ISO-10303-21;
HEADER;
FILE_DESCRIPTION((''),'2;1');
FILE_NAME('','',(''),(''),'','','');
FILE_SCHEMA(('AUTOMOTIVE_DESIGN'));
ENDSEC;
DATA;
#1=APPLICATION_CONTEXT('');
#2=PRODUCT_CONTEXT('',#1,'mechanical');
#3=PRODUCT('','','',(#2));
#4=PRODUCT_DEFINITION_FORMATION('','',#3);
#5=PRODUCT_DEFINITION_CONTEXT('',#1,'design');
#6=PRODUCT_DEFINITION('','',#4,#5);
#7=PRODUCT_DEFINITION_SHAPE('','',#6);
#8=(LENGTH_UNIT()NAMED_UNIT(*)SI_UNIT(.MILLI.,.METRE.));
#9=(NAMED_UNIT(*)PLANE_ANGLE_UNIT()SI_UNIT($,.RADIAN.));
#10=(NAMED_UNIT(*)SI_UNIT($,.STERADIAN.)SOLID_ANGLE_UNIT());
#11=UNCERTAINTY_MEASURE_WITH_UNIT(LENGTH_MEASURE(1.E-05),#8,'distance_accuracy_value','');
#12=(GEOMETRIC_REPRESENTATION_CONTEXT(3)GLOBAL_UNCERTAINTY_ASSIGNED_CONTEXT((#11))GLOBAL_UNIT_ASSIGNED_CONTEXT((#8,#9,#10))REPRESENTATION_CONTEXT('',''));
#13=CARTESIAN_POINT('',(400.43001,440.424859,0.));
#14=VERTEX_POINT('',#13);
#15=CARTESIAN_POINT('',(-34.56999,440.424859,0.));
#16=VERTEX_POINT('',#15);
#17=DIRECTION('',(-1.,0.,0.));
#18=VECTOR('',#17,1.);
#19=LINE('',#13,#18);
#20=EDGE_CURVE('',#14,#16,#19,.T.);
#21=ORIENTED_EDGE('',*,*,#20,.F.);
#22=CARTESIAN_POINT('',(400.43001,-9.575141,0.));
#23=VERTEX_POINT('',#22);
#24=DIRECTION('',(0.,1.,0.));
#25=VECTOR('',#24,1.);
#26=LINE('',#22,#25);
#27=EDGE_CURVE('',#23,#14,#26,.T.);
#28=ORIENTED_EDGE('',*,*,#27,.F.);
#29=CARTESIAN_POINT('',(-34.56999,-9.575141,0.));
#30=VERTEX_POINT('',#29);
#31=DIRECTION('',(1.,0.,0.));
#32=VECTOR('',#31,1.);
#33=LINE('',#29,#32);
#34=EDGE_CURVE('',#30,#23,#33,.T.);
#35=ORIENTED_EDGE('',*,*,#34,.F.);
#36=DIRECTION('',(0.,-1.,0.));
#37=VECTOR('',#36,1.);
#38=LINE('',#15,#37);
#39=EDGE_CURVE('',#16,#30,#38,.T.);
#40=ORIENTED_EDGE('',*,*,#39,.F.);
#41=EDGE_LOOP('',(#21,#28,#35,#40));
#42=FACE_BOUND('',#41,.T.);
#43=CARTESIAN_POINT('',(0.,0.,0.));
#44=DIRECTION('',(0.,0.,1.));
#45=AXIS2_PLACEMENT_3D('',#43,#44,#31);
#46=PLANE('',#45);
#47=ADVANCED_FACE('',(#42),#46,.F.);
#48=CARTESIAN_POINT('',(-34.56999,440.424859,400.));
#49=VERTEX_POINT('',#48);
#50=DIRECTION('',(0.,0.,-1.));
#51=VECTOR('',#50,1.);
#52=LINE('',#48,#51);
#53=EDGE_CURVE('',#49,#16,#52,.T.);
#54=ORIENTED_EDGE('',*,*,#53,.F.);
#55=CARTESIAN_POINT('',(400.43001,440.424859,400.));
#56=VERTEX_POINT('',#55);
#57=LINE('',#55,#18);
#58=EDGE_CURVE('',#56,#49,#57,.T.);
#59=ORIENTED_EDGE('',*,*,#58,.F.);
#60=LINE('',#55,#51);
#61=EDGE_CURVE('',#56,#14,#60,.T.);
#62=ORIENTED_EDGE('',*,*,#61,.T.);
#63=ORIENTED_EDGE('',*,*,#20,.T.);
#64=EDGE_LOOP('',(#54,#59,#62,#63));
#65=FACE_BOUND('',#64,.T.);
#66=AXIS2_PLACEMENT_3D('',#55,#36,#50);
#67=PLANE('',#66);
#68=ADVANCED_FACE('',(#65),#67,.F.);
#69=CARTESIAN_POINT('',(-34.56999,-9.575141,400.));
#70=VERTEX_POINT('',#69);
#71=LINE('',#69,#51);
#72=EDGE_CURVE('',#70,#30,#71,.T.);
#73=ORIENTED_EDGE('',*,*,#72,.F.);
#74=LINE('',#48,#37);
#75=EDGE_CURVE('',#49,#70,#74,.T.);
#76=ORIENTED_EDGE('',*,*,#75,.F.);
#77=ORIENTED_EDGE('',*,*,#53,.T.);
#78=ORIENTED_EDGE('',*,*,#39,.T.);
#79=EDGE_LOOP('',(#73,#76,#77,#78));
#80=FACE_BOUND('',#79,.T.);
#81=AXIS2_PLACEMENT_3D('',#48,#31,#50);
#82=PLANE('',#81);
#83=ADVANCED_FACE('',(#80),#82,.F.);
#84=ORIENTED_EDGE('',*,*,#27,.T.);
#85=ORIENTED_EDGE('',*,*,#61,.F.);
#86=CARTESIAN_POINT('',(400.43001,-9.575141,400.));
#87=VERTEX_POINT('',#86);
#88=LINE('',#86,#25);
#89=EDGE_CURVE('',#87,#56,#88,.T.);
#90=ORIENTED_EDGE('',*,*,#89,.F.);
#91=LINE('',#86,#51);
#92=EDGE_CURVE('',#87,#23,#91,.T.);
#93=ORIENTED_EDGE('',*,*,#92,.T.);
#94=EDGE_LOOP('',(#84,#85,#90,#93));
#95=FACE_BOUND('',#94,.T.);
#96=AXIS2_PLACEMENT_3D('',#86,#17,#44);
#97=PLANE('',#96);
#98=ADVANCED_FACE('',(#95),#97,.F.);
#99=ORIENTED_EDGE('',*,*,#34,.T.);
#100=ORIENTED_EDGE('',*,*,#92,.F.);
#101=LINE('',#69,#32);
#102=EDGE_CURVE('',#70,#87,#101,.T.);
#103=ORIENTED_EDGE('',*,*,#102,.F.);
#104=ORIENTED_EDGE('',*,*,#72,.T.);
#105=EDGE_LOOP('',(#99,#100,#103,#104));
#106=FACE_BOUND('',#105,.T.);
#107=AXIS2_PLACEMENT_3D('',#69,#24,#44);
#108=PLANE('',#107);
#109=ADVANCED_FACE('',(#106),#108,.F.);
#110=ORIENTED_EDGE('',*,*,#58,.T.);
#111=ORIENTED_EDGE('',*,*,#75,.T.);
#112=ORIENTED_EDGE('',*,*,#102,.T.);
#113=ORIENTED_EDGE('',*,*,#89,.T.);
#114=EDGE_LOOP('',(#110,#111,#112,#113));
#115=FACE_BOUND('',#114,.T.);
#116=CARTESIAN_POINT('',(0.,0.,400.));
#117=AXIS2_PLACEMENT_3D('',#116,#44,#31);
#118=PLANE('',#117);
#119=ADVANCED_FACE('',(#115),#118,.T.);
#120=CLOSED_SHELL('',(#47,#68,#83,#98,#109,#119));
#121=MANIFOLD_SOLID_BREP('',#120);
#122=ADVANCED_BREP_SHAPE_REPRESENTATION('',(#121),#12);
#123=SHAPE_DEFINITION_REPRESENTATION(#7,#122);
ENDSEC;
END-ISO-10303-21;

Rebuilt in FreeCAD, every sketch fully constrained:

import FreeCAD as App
import Part
import Sketcher

V = App.Vector
Q = App.Units.Quantity


def add_polygon(sketch, points):
    """Adds a closed chain of lines whose ends are joined by coincident constraints."""
    first, n = sketch.GeometryCount, len(points)
    for a, b in zip(points, points[1:] + points[:1]):
        sketch.addGeometry(Part.LineSegment(App.Vector(*a, 0), App.Vector(*b, 0)), False)
    for i in range(n):
        sketch.addConstraint(Sketcher.Constraint("Coincident", first + i, 2, first + (i + 1) % n, 1))

doc = App.newDocument("Part")
body = doc.addObject("PartDesign::Body", "Body")

sketch1 = body.newObject("Sketcher::SketchObject", "Sketch")
sketch1.AttachmentSupport = (doc.getObject("XY_Plane"), [""])
sketch1.MapMode = "FlatFace"
add_polygon(sketch1, [(-35, 440), (-35, -10), (400, -10), (400, 440)])
sketch1.addConstraint(Sketcher.Constraint("Vertical", 0))
sketch1.addConstraint(Sketcher.Constraint("Horizontal", 1))
sketch1.addConstraint(Sketcher.Constraint("Vertical", 2))
sketch1.addConstraint(Sketcher.Constraint("Horizontal", 3))
sketch1.addConstraint(Sketcher.Constraint("DistanceX", 1, 1, 1, 2, Q("435 mm")))
sketch1.addConstraint(Sketcher.Constraint("DistanceY", 0, 2, 0, 1, Q("450 mm")))
sketch1.addConstraint(Sketcher.Constraint("DistanceX", 0, 2, -1, 1, Q("34.56999 mm")))
sketch1.addConstraint(Sketcher.Constraint("DistanceY", 0, 2, -1, 1, Q("9.575141 mm")))
pad1 = body.newObject("PartDesign::Pad", "Pad")
pad1.Profile = sketch1
pad1.Length = 400

doc.recompute()
